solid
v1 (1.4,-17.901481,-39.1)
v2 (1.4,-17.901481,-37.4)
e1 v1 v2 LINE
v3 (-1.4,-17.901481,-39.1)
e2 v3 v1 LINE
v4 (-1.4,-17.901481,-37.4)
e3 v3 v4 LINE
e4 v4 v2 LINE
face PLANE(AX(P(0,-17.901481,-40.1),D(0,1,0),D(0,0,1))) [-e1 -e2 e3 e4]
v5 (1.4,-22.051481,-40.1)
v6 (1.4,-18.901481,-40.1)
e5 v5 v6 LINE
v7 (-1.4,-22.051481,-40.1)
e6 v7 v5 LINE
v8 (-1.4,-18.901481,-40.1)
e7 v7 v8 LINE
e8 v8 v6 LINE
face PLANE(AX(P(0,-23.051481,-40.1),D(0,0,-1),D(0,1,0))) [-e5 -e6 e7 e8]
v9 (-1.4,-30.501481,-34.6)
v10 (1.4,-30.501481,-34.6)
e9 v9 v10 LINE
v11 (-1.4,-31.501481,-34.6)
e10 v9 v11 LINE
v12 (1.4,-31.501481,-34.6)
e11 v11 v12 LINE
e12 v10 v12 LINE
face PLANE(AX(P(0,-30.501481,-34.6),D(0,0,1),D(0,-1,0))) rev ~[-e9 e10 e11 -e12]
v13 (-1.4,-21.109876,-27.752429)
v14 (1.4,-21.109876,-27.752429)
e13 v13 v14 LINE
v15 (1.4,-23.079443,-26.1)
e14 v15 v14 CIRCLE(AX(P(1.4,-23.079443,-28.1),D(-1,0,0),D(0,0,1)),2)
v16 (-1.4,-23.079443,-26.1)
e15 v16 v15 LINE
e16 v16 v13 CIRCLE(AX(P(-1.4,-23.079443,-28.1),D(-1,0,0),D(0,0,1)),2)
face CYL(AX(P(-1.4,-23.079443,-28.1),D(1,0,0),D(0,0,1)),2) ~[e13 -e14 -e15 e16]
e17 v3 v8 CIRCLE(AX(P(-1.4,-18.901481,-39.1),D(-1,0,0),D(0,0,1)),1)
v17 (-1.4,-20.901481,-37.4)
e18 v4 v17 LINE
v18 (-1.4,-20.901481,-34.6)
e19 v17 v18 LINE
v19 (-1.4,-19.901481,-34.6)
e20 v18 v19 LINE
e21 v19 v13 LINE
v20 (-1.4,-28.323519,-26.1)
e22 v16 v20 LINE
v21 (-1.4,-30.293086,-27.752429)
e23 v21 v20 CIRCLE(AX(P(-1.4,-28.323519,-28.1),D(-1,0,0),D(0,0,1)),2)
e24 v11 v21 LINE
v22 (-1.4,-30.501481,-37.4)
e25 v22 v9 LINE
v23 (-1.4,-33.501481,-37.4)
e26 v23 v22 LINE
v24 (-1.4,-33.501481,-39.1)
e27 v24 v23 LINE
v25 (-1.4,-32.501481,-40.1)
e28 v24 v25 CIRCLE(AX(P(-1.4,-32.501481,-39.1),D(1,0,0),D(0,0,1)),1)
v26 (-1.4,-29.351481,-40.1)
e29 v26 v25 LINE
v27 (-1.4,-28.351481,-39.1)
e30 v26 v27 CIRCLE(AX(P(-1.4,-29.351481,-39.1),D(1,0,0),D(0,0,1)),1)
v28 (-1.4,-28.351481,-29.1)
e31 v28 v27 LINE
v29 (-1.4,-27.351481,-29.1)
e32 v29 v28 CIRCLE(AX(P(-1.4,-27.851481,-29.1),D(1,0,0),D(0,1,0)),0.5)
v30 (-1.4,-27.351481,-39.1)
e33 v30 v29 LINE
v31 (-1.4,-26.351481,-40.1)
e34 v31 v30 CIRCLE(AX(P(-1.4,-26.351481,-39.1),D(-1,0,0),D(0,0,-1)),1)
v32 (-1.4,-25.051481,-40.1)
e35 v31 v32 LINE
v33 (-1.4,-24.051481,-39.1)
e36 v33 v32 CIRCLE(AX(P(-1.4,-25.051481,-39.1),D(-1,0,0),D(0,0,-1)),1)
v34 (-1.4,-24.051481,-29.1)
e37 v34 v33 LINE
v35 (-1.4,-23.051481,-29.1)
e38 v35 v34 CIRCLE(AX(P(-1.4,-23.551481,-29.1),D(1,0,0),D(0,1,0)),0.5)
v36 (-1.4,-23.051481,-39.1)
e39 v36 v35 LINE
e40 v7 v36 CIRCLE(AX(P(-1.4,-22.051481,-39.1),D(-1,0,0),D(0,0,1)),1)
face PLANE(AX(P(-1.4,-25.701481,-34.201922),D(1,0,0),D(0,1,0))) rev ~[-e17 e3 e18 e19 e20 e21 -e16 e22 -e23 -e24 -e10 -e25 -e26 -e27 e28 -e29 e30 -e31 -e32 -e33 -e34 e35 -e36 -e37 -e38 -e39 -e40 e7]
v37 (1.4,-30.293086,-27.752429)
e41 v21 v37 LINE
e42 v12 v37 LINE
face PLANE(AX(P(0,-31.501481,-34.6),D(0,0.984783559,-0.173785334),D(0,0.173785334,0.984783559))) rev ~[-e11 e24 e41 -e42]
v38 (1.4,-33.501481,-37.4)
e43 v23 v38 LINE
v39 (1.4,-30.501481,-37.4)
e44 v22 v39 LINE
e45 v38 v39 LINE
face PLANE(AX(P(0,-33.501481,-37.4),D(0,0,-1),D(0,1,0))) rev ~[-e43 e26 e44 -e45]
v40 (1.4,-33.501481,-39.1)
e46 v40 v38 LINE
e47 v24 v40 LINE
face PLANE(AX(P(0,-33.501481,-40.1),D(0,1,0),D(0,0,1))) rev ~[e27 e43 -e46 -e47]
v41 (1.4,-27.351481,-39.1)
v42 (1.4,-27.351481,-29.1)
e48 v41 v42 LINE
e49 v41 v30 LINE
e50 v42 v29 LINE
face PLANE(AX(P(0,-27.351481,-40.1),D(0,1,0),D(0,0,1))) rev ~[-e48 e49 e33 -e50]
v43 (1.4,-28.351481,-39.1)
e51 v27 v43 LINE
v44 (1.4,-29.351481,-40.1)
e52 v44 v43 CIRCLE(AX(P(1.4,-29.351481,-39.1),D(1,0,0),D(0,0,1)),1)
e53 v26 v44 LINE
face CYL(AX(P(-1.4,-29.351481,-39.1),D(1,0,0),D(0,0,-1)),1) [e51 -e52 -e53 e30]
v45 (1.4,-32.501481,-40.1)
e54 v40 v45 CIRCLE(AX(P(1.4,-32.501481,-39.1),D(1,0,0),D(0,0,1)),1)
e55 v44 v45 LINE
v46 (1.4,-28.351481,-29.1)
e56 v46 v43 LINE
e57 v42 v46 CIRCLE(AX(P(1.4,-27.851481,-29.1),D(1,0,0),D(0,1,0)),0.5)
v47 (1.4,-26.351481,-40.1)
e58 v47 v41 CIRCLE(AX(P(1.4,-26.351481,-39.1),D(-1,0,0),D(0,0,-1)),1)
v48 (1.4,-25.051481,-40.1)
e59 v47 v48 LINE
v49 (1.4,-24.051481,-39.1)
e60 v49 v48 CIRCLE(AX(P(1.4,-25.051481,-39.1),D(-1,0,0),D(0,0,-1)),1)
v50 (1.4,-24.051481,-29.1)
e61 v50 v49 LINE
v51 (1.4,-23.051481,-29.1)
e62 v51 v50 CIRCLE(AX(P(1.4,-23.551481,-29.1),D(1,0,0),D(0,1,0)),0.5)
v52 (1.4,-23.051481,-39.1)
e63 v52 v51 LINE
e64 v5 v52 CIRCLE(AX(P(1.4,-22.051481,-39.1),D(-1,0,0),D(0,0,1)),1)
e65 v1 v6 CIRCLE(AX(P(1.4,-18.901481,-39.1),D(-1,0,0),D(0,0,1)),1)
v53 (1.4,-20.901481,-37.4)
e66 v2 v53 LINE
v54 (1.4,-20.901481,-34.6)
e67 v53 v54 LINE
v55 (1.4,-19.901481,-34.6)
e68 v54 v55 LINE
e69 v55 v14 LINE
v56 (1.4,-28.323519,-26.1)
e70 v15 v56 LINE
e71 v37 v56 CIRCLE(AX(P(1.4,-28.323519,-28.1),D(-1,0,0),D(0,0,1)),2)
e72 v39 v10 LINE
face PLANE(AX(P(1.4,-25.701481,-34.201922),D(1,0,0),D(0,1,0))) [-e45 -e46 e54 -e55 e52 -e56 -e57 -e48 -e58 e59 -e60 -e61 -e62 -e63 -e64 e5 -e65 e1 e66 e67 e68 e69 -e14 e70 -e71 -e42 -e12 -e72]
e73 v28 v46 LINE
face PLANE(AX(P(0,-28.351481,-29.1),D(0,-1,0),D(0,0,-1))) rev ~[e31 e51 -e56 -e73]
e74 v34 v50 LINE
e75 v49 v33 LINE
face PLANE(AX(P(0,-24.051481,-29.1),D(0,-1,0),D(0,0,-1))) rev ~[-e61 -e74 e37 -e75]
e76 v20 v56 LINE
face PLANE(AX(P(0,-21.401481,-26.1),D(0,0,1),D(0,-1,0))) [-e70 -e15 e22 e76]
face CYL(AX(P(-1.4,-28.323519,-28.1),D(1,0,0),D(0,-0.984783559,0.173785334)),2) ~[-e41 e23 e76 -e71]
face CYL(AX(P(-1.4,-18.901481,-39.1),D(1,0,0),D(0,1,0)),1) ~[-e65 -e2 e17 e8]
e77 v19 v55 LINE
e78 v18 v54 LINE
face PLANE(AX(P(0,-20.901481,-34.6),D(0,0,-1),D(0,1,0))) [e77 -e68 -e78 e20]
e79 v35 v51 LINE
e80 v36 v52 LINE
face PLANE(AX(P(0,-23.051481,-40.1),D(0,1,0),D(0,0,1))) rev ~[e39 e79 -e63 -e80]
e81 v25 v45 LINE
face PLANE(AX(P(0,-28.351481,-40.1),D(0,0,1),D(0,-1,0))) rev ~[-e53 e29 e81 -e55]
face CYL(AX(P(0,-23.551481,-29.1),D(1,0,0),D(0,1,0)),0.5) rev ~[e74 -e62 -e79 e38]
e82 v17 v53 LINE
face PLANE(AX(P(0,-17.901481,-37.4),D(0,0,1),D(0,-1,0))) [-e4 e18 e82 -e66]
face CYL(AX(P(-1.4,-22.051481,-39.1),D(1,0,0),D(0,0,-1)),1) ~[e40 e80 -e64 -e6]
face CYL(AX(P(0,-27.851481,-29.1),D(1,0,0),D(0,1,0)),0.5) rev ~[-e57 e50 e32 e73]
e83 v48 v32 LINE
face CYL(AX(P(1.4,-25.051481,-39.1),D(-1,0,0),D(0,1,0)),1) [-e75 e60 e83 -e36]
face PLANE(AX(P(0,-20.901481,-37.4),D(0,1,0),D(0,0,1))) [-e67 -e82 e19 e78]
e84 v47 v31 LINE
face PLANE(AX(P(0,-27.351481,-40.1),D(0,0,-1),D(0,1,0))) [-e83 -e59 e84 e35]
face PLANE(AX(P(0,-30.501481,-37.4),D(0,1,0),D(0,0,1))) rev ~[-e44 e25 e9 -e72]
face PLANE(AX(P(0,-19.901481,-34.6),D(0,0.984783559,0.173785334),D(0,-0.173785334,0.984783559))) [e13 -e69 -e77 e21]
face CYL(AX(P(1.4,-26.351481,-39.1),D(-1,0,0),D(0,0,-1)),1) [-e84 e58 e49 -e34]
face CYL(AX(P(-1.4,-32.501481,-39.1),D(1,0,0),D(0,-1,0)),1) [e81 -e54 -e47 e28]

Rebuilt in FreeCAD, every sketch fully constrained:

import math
import FreeCAD as App
import Part
import Sketcher

V = App.Vector
Q = App.Units.Quantity


def edges_at(feature, points):
    """Names of the edges that pass closest to the given points."""
    edges = feature.Shape.Edges
    near = lambda p: min(range(len(edges)), key=lambda i: edges[i].distToShape(Part.Vertex(*p))[0])
    return sorted({f"Edge{near(p) + 1}" for p in points})

doc = App.newDocument("Part")
params = doc.addObject("Spreadsheet::Sheet", "Params")
for row, (alias, value) in enumerate([
    ("sketch1_radius", "0.5 mm"),
    ("sketch1_width", "3 mm"),
    ("sketch1_width2", "1 mm"),
    ("sketch1_height", "11 mm"),
    ("sketch1_width3", "8.6 mm"),
    ("pad1_length", "2.8 mm"),
    ("fillet_radius", "2 mm"),
    ("fillet2_radius", "1 mm"),
], start=1):
    params.set(f"A{row}", alias)
    params.set(f"B{row}", "=" + value)
    params.setAlias(f"B{row}", alias)

body = doc.addObject("PartDesign::Body", "Body")

sketch1 = doc.addObject("Sketcher::SketchObject", "Sketch")
body.addObject(sketch1)
sketch1.AttachmentSupport = (doc.YZ_Plane, [""])
sketch1.MapMode = "FlatFace"
sketch1.addGeometry([
    Part.LineSegment(V(-24.1, -40.1, 0), V(-24.1, -29.1, 0)),
    Part.ArcOfCircle(Part.Circle(V(-23.6, -29.1, 0), V(0, 0, 1), 0.5), math.radians(0), math.radians(180)),
    Part.LineSegment(V(-23.1, -29.1, 0), V(-23.1, -40.1, 0)),
    Part.LineSegment(V(-23.1, -40.1, 0), V(-17.9, -40.1, 0)),
    Part.LineSegment(V(-17.9, -40.1, 0), V(-17.9, -37.4, 0)),
    Part.LineSegment(V(-17.9, -37.4, 0), V(-20.9, -37.4, 0)),
    Part.LineSegment(V(-20.9, -37.4, 0), V(-20.9, -34.6, 0)),
    Part.LineSegment(V(-20.9, -34.6, 0), V(-19.9, -34.6, 0)),
    Part.LineSegment(V(-19.9, -34.6, 0), V(-21.4, -26.1, 0)),
    Part.LineSegment(V(-21.4, -26.1, 0), V(-30, -26.1, 0)),
    Part.LineSegment(V(-30, -26.1, 0), V(-31.5, -34.6, 0)),
    Part.LineSegment(V(-31.5, -34.6, 0), V(-30.5, -34.6, 0)),
    Part.LineSegment(V(-30.5, -34.6, 0), V(-30.5, -37.4, 0)),
    Part.LineSegment(V(-30.5, -37.4, 0), V(-33.5, -37.4, 0)),
    Part.LineSegment(V(-33.5, -37.4, 0), V(-33.5, -40.1, 0)),
    Part.LineSegment(V(-33.5, -40.1, 0), V(-28.4, -40.1, 0)),
    Part.LineSegment(V(-28.4, -40.1, 0), V(-28.4, -29.1, 0)),
    Part.ArcOfCircle(Part.Circle(V(-27.9, -29.1, 0), V(0, 0, 1), 0.5), math.radians(0), math.radians(180)),
    Part.LineSegment(V(-27.4, -29.1, 0), V(-27.4, -40.1, 0)),
    Part.LineSegment(V(-27.4, -40.1, 0), V(-24.1, -40.1, 0)),
], False)
sketch1.addConstraint([
    Sketcher.Constraint("Tangent", 0, 2, 1, 2),
    Sketcher.Constraint("Tangent", 1, 1, 2, 1),
    Sketcher.Constraint("Coincident", 2, 2, 3, 1),
    Sketcher.Constraint("Coincident", 3, 2, 4, 1),
    Sketcher.Constraint("Coincident", 4, 2, 5, 1),
    Sketcher.Constraint("Coincident", 5, 2, 6, 1),
    Sketcher.Constraint("Coincident", 6, 2, 7, 1),
    Sketcher.Constraint("Coincident", 7, 2, 8, 1),
    Sketcher.Constraint("Coincident", 8, 2, 9, 1),
    Sketcher.Constraint("Coincident", 9, 2, 10, 1),
    Sketcher.Constraint("Coincident", 10, 2, 11, 1),
    Sketcher.Constraint("Coincident", 11, 2, 12, 1),
    Sketcher.Constraint("Coincident", 12, 2, 13, 1),
    Sketcher.Constraint("Coincident", 13, 2, 14, 1),
    Sketcher.Constraint("Coincident", 14, 2, 15, 1),
    Sketcher.Constraint("Coincident", 15, 2, 16, 1),
    Sketcher.Constraint("Tangent", 16, 2, 17, 2),
    Sketcher.Constraint("Tangent", 17, 1, 18, 1),
    Sketcher.Constraint("Coincident", 18, 2, 19, 1),
    Sketcher.Constraint("Coincident", 19, 2, 0, 1),
    Sketcher.Constraint("Vertical", 0),
    Sketcher.Constraint("Vertical", 2),
    Sketcher.Constraint("Horizontal", 3),
    Sketcher.Constraint("Vertical", 4),
    Sketcher.Constraint("Horizontal", 5),
    Sketcher.Constraint("Vertical", 6),
    Sketcher.Constraint("Horizontal", 7),
    Sketcher.Constraint("Horizontal", 9),
    Sketcher.Constraint("Horizontal", 11),
    Sketcher.Constraint("Vertical", 12),
    Sketcher.Constraint("Horizontal", 13),
    Sketcher.Constraint("Vertical", 14),
    Sketcher.Constraint("Horizontal", 15),
    Sketcher.Constraint("Vertical", 16),
    Sketcher.Constraint("Vertical", 18),
    Sketcher.Constraint("Horizontal", 19),
    Sketcher.Constraint("Equal", 1, 17),
    Sketcher.Constraint("Horizontal", 1, 3, 17, 3),
    Sketcher.Constraint("Horizontal", 7, 2, 10, 2),
    Sketcher.Constraint("Horizontal", 5, 2, 12, 2),
    Sketcher.Constraint("Horizontal", 3, 2, 14, 2),
    Sketcher.Constraint("Horizontal", 15, 2, 18, 2),
    Sketcher.Constraint("Equal", 7, 11),
    Sketcher.Constraint("Equal", 5, 13),
    Sketcher.Constraint("Equal", 3, 15),
    Sketcher.Constraint("Equal", 8, 10),
    Sketcher.Constraint("Radius", 1, Q("0.5 mm")),
    Sketcher.Constraint("DistanceX", 5, 2, 5, 1, Q("3 mm")),
    Sketcher.Constraint("DistanceX", 7, 1, 7, 2, Q("1 mm")),
    Sketcher.Constraint("DistanceY", 0, 1, 0, 2, Q("11 mm")),
    Sketcher.Constraint("DistanceX", 9, 2, 9, 1, Q("8.6 mm")),
    Sketcher.Constraint("DistanceX", 19, 1, 19, 2, Q("3.3 mm")),
    Sketcher.Constraint("DistanceY", 4, 1, 4, 2, Q("2.7 mm")),
    Sketcher.Constraint("DistanceY", 6, 1, 6, 2, Q("2.8 mm")),
    Sketcher.Constraint("DistanceY", 1, 1, 8, 2, Q("3 mm")),
    Sketcher.Constraint("DistanceX", 3, 1, 3, 2, Q("5.15 mm")),
    Sketcher.Constraint("DistanceY", 1, 3, -1, 1, Q("29.1 mm")),
    Sketcher.Constraint("DistanceX", 1, 3, -1, 1, Q("23.551481 mm")),
])
sketch1.setExpression("Constraints[46]", "Params.sketch1_radius")
sketch1.setExpression("Constraints[47]", "Params.sketch1_width")
sketch1.setExpression("Constraints[48]", "Params.sketch1_width2")
sketch1.setExpression("Constraints[49]", "Params.sketch1_height")
sketch1.setExpression("Constraints[50]", "Params.sketch1_width3")
pad1 = doc.addObject("PartDesign::Pad", "Pad")
body.addObject(pad1)
pad1.Profile = sketch1
pad1.setExpression("Length", "Params.pad1_length")
pad1.Midplane = True
doc.recompute()

fillet = doc.addObject("PartDesign::Fillet", "Fillet")
body.addObject(fillet)
fillet.Base = (pad1, edges_at(pad1, [(0, -21.401, -26.1), (0, -30.001, -26.1)]))
fillet.setExpression("Radius", "Params.fillet_radius")
doc.recompute()

fillet2 = doc.addObject("PartDesign::Fillet", "Fillet001")
body.addObject(fillet2)
fillet2.Base = (fillet, edges_at(fillet, [
    (0, -33.501, -40.1),
    (0, -17.901, -40.1),
    (0, -28.351, -40.1),
    (0, -27.351, -40.1),
    (0, -24.051, -40.1),
    (0, -23.051, -40.1),
]))
fillet2.setExpression("Radius", "Params.fillet2_radius")

doc.recompute()
